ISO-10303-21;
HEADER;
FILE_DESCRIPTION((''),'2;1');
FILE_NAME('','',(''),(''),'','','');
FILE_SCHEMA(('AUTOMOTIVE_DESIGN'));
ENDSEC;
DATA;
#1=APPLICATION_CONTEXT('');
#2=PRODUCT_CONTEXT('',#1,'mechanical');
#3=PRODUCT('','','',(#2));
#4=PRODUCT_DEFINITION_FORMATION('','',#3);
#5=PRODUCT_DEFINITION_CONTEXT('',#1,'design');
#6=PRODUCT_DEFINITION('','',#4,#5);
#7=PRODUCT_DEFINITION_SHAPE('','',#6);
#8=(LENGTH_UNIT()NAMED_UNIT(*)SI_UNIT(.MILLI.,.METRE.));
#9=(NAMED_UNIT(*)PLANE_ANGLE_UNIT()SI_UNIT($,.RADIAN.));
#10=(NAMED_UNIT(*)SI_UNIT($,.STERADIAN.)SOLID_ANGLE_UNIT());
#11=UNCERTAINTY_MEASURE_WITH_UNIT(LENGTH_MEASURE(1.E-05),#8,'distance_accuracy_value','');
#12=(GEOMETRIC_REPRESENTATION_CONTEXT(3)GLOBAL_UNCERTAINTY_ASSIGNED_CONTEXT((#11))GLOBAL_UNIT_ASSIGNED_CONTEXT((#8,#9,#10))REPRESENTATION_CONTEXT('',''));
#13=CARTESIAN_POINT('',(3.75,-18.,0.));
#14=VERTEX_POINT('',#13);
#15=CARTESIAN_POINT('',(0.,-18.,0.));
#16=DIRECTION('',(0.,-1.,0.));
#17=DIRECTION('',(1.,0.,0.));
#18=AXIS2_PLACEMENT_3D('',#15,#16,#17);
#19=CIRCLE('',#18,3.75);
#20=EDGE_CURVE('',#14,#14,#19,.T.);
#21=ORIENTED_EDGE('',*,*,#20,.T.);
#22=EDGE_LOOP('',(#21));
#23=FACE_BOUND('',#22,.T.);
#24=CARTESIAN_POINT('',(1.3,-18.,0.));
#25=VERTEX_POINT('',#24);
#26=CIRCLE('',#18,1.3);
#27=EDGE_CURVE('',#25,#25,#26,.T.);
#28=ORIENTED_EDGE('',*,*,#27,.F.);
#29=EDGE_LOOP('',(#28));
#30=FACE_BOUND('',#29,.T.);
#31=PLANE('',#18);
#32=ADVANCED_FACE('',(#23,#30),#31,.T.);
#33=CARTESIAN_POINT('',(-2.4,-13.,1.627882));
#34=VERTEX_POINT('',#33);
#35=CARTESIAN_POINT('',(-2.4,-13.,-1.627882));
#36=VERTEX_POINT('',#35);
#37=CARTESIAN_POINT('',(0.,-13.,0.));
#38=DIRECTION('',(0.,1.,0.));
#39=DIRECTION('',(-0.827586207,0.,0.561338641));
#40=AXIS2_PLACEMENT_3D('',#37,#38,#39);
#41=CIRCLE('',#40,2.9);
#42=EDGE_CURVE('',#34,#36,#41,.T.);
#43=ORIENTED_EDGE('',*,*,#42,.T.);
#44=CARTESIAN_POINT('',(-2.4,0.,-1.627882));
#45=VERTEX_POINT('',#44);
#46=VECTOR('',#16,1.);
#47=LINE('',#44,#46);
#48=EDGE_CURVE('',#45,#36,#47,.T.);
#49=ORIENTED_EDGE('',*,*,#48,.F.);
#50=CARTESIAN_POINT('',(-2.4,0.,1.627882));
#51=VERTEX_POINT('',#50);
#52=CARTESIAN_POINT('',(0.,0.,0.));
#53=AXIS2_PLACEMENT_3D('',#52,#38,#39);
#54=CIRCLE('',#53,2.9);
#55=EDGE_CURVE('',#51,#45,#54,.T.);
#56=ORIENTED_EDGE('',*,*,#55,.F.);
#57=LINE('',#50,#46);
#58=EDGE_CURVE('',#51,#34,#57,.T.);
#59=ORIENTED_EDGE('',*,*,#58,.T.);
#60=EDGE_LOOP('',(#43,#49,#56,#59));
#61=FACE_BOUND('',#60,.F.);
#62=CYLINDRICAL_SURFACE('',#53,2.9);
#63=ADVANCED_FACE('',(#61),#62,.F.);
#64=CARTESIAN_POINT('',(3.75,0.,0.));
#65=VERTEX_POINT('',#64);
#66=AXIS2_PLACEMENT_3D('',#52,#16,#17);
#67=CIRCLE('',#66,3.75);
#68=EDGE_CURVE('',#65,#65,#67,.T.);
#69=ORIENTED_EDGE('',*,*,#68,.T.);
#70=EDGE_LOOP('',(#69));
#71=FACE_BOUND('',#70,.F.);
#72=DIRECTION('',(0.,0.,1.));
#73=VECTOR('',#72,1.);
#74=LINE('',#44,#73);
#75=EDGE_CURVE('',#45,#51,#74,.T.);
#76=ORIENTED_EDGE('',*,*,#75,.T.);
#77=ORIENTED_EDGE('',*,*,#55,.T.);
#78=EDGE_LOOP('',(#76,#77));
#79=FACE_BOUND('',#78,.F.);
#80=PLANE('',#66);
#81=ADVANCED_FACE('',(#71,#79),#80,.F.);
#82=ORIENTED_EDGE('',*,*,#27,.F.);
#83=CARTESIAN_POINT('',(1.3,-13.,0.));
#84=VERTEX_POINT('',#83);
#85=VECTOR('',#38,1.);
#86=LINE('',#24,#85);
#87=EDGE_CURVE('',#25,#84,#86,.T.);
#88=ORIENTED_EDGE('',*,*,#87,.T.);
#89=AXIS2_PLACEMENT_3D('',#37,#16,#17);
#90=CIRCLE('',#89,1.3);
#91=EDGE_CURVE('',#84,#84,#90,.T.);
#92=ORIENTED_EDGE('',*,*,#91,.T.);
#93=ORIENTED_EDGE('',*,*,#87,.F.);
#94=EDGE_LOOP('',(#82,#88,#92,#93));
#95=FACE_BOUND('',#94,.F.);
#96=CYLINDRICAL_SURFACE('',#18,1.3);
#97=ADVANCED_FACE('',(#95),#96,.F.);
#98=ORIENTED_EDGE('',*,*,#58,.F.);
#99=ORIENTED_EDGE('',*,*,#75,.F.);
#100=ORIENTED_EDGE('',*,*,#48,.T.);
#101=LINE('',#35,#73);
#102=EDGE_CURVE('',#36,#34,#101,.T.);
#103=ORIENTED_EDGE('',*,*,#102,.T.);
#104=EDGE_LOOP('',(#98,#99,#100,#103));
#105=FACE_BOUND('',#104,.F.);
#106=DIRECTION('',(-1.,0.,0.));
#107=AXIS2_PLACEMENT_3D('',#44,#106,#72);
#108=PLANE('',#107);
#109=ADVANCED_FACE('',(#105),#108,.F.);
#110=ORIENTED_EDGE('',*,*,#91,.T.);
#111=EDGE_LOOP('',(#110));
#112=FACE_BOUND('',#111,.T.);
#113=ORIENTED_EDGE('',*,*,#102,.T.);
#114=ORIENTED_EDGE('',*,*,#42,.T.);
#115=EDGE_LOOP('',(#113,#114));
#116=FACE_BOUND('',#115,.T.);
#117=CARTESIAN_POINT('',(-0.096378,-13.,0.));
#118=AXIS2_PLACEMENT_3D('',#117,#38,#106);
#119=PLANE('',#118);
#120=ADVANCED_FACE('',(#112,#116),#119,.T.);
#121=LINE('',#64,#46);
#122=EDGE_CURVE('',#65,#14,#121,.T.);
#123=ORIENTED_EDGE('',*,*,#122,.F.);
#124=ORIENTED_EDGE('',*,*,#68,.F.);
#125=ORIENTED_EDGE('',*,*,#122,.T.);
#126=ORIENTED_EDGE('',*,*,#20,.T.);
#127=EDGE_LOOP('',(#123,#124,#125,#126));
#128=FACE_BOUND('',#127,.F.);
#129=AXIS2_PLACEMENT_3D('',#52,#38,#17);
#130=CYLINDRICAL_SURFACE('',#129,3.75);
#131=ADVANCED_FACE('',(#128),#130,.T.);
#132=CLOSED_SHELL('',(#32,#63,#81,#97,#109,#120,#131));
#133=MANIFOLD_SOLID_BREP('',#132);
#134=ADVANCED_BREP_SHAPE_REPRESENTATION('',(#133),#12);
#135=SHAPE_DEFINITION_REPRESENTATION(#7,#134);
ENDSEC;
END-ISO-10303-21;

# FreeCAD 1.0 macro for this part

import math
import FreeCAD as App
import Part
import Sketcher

V = App.Vector
Q = App.Units.Quantity

doc = App.newDocument("Part")
body = doc.addObject("PartDesign::Body", "Body")

sketch1 = body.newObject("Sketcher::SketchObject", "Sketch")
sketch1.AttachmentSupport = (doc.getObject("XZ_Plane"), [""])
sketch1.MapMode = "FlatFace"
sketch1.addGeometry(Part.Circle(V(0, 0, 0), V(0, 0, 1), 3.8), False)
sketch1.addConstraint(Sketcher.Constraint("Coincident", 0, 3, -1, 1))
sketch1.addConstraint(Sketcher.Constraint("Diameter", 0, Q("7.5 mm")))
pad1 = body.newObject("PartDesign::Pad", "Pad")
pad1.Profile = sketch1
pad1.Length = 18

sketch2 = body.newObject("Sketcher::SketchObject", "Sketch001")
sketch2.AttachmentSupport = (doc.getObject("XZ_Plane"), [""])
sketch2.MapMode = "FlatFace"
sketch2.addGeometry(Part.LineSegment(V(-2.4, -1.6, 0), V(-2.4, 1.6, 0)), False)
sketch2.addGeometry(Part.ArcOfCircle(Part.Circle(V(0, 0, 0), V(0, 0, 1), 2.9), math.radians(-146), math.radians(146)), False)
sketch2.addConstraint(Sketcher.Constraint("Coincident", 0, 1, 1, 1))
sketch2.addConstraint(Sketcher.Constraint("Coincident", 1, 2, 0, 2))
sketch2.addConstraint(Sketcher.Constraint("Vertical", 0))
sketch2.addConstraint(Sketcher.Constraint("Coincident", 1, 3, -1, 1))
sketch2.addConstraint(Sketcher.Constraint("Radius", 1, Q("2.9 mm")))
sketch2.addConstraint(Sketcher.Constraint("DistanceX", 0, 1, -1, 1, Q("2.4 mm")))
pocket1 = body.newObject("PartDesign::Pocket", "Pocket")
pocket1.Profile = sketch2
pocket1.Length = 13
pocket1.Reversed = True

sketch3 = body.newObject("Sketcher::SketchObject", "Sketch002")
sketch3.AttachmentSupport = (doc.getObject("XZ_Plane"), [""])
sketch3.MapMode = "FlatFace"
sketch3.AttachmentOffset = App.Placement(V(0, 0, 18), App.Rotation())
sketch3.addGeometry(Part.Circle(V(0, 0, 0), V(0, 0, 1), 1.3), False)
sketch3.addConstraint(Sketcher.Constraint("Coincident", 0, 3, -1, 1))
sketch3.addConstraint(Sketcher.Constraint("Diameter", 0, Q("2.6 mm")))
pocket2 = body.newObject("PartDesign::Pocket", "Pocket001")
pocket2.Profile = sketch3
pocket2.Type = "ThroughAll"

doc.recompute()
